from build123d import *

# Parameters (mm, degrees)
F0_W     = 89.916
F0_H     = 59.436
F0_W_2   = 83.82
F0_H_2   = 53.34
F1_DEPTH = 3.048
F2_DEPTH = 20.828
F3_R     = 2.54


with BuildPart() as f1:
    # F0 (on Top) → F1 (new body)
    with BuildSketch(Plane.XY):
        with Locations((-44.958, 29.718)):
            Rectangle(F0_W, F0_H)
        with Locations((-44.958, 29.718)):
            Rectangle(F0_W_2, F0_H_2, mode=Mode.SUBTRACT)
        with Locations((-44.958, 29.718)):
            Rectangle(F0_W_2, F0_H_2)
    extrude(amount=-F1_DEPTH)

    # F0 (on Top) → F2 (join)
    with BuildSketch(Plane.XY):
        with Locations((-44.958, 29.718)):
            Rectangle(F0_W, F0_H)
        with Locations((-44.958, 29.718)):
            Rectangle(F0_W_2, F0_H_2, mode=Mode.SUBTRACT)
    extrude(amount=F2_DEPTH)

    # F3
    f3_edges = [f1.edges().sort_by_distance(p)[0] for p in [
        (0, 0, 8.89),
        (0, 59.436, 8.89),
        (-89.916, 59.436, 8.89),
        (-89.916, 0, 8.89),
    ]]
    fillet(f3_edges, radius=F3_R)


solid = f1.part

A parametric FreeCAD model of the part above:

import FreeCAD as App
import Part
import Sketcher

V = App.Vector
Q = App.Units.Quantity


def edges_at(feature, points):
    """Names of the edges that pass closest to the given points."""
    edges = feature.Shape.Edges
    near = lambda p: min(range(len(edges)), key=lambda i: edges[i].distToShape(Part.Vertex(*p))[0])
    return sorted({f"Edge{near(p) + 1}" for p in points})

doc = App.newDocument("Part")
body = doc.addObject("PartDesign::Body", "Body")

# Sketch on XY plane
sketch1 = doc.addObject("Sketcher::SketchObject", "Sketch")
body.addObject(sketch1)
sketch1.AttachmentSupport = (doc.XY_Plane, [""])
sketch1.MapMode = "FlatFace"
sketch1.addGeometry([
    Part.LineSegment(V(-90, 59, 0), V(-90, 0, 0)),
    Part.LineSegment(V(-90, 0, 0), V(0, 0, 0)),
    Part.LineSegment(V(0, 0, 0), V(0, 59, 0)),
    Part.LineSegment(V(0, 59, 0), V(-90, 59, 0)),
], False)
sketch1.addConstraint([
    Sketcher.Constraint("Coincident", 0, 2, 1, 1),
    Sketcher.Constraint("Coincident", 1, 2, 2, 1),
    Sketcher.Constraint("Coincident", 2, 2, 3, 1),
    Sketcher.Constraint("Coincident", 3, 2, 0, 1),
    Sketcher.Constraint("Vertical", 0),
    Sketcher.Constraint("Horizontal", 1),
    Sketcher.Constraint("Vertical", 2),
    Sketcher.Constraint("Horizontal", 3),
    Sketcher.Constraint("Coincident", 1, 2, -1, 1),
    Sketcher.Constraint("DistanceX", 1, 1, 1, 2, Q("3.54 in")),
    Sketcher.Constraint("DistanceY", 0, 2, 0, 1, Q("2.34 in")),
])
pad1 = doc.addObject("PartDesign::Pad", "Pad")
body.addObject(pad1)
pad1.Profile = sketch1
pad1.Length = Q("0.12 in")
pad1.Reversed = True

# Sketch on XY plane
sketch2 = doc.addObject("Sketcher::SketchObject", "Sketch001")
body.addObject(sketch2)
sketch2.AttachmentSupport = (doc.XY_Plane, [""])
sketch2.MapMode = "FlatFace"
sketch2.addGeometry([
    Part.LineSegment(V(-90, 59, 0), V(-90, 0, 0)),  # 0
    Part.LineSegment(V(-90, 0, 0), V(0, 0, 0)),  # 1
    Part.LineSegment(V(0, 0, 0), V(0, 59, 0)),  # 2
    Part.LineSegment(V(0, 59, 0), V(-90, 59, 0)),  # 3
    Part.LineSegment(V(-3, 3, 0), V(-87, 3, 0)),  # 4
    Part.LineSegment(V(-87, 3, 0), V(-87, 56, 0)),  # 5
    Part.LineSegment(V(-87, 56, 0), V(-3, 56, 0)),  # 6
    Part.LineSegment(V(-3, 56, 0), V(-3, 3, 0)),  # 7
], False)
sketch2.addConstraint([
    Sketcher.Constraint("Coincident", 0, 2, 1, 1),
    Sketcher.Constraint("Coincident", 1, 2, 2, 1),
    Sketcher.Constraint("Coincident", 2, 2, 3, 1),
    Sketcher.Constraint("Coincident", 3, 2, 0, 1),
    Sketcher.Constraint("Coincident", 4, 2, 5, 1),
    Sketcher.Constraint("Coincident", 5, 2, 6, 1),
    Sketcher.Constraint("Coincident", 6, 2, 7, 1),
    Sketcher.Constraint("Coincident", 7, 2, 4, 1),
    Sketcher.Constraint("Vertical", 0),
    Sketcher.Constraint("Horizontal", 1),
    Sketcher.Constraint("Vertical", 2),
    Sketcher.Constraint("Horizontal", 3),
    Sketcher.Constraint("Horizontal", 4),
    Sketcher.Constraint("Vertical", 5),
    Sketcher.Constraint("Horizontal", 6),
    Sketcher.Constraint("Vertical", 7),
    Sketcher.Constraint("Coincident", 1, 2, -1, 1),
    Sketcher.Constraint("DistanceX", 4, 2, 4, 1, Q("3.3 in")),
    Sketcher.Constraint("DistanceY", 5, 1, 5, 2, Q("2.1 in")),
    Sketcher.Constraint("DistanceX", 1, 1, 1, 2, Q("3.54 in")),
    Sketcher.Constraint("DistanceY", 0, 2, 0, 1, Q("2.34 in")),
    Sketcher.Constraint("DistanceX", 4, 2, -1, 1, Q("3.42 in")),
    Sketcher.Constraint("DistanceY", -1, 1, 4, 2, Q("0.12 in")),
])
pad2 = doc.addObject("PartDesign::Pad", "Pad001")
body.addObject(pad2)
pad2.Profile = sketch2
pad2.Length = Q("0.82 in")
doc.recompute()

fillet = doc.addObject("PartDesign::Fillet", "Fillet")
body.addObject(fillet)
fillet.Base = (pad2, edges_at(pad2, [
    (0, 0, 8.89),
    (0, 59.436, 8.89),
    (-89.916, 59.436, 8.89),
    (-89.916, 0, 8.89),
]))
fillet.Radius = Q("0.1 in")

doc.recompute()
